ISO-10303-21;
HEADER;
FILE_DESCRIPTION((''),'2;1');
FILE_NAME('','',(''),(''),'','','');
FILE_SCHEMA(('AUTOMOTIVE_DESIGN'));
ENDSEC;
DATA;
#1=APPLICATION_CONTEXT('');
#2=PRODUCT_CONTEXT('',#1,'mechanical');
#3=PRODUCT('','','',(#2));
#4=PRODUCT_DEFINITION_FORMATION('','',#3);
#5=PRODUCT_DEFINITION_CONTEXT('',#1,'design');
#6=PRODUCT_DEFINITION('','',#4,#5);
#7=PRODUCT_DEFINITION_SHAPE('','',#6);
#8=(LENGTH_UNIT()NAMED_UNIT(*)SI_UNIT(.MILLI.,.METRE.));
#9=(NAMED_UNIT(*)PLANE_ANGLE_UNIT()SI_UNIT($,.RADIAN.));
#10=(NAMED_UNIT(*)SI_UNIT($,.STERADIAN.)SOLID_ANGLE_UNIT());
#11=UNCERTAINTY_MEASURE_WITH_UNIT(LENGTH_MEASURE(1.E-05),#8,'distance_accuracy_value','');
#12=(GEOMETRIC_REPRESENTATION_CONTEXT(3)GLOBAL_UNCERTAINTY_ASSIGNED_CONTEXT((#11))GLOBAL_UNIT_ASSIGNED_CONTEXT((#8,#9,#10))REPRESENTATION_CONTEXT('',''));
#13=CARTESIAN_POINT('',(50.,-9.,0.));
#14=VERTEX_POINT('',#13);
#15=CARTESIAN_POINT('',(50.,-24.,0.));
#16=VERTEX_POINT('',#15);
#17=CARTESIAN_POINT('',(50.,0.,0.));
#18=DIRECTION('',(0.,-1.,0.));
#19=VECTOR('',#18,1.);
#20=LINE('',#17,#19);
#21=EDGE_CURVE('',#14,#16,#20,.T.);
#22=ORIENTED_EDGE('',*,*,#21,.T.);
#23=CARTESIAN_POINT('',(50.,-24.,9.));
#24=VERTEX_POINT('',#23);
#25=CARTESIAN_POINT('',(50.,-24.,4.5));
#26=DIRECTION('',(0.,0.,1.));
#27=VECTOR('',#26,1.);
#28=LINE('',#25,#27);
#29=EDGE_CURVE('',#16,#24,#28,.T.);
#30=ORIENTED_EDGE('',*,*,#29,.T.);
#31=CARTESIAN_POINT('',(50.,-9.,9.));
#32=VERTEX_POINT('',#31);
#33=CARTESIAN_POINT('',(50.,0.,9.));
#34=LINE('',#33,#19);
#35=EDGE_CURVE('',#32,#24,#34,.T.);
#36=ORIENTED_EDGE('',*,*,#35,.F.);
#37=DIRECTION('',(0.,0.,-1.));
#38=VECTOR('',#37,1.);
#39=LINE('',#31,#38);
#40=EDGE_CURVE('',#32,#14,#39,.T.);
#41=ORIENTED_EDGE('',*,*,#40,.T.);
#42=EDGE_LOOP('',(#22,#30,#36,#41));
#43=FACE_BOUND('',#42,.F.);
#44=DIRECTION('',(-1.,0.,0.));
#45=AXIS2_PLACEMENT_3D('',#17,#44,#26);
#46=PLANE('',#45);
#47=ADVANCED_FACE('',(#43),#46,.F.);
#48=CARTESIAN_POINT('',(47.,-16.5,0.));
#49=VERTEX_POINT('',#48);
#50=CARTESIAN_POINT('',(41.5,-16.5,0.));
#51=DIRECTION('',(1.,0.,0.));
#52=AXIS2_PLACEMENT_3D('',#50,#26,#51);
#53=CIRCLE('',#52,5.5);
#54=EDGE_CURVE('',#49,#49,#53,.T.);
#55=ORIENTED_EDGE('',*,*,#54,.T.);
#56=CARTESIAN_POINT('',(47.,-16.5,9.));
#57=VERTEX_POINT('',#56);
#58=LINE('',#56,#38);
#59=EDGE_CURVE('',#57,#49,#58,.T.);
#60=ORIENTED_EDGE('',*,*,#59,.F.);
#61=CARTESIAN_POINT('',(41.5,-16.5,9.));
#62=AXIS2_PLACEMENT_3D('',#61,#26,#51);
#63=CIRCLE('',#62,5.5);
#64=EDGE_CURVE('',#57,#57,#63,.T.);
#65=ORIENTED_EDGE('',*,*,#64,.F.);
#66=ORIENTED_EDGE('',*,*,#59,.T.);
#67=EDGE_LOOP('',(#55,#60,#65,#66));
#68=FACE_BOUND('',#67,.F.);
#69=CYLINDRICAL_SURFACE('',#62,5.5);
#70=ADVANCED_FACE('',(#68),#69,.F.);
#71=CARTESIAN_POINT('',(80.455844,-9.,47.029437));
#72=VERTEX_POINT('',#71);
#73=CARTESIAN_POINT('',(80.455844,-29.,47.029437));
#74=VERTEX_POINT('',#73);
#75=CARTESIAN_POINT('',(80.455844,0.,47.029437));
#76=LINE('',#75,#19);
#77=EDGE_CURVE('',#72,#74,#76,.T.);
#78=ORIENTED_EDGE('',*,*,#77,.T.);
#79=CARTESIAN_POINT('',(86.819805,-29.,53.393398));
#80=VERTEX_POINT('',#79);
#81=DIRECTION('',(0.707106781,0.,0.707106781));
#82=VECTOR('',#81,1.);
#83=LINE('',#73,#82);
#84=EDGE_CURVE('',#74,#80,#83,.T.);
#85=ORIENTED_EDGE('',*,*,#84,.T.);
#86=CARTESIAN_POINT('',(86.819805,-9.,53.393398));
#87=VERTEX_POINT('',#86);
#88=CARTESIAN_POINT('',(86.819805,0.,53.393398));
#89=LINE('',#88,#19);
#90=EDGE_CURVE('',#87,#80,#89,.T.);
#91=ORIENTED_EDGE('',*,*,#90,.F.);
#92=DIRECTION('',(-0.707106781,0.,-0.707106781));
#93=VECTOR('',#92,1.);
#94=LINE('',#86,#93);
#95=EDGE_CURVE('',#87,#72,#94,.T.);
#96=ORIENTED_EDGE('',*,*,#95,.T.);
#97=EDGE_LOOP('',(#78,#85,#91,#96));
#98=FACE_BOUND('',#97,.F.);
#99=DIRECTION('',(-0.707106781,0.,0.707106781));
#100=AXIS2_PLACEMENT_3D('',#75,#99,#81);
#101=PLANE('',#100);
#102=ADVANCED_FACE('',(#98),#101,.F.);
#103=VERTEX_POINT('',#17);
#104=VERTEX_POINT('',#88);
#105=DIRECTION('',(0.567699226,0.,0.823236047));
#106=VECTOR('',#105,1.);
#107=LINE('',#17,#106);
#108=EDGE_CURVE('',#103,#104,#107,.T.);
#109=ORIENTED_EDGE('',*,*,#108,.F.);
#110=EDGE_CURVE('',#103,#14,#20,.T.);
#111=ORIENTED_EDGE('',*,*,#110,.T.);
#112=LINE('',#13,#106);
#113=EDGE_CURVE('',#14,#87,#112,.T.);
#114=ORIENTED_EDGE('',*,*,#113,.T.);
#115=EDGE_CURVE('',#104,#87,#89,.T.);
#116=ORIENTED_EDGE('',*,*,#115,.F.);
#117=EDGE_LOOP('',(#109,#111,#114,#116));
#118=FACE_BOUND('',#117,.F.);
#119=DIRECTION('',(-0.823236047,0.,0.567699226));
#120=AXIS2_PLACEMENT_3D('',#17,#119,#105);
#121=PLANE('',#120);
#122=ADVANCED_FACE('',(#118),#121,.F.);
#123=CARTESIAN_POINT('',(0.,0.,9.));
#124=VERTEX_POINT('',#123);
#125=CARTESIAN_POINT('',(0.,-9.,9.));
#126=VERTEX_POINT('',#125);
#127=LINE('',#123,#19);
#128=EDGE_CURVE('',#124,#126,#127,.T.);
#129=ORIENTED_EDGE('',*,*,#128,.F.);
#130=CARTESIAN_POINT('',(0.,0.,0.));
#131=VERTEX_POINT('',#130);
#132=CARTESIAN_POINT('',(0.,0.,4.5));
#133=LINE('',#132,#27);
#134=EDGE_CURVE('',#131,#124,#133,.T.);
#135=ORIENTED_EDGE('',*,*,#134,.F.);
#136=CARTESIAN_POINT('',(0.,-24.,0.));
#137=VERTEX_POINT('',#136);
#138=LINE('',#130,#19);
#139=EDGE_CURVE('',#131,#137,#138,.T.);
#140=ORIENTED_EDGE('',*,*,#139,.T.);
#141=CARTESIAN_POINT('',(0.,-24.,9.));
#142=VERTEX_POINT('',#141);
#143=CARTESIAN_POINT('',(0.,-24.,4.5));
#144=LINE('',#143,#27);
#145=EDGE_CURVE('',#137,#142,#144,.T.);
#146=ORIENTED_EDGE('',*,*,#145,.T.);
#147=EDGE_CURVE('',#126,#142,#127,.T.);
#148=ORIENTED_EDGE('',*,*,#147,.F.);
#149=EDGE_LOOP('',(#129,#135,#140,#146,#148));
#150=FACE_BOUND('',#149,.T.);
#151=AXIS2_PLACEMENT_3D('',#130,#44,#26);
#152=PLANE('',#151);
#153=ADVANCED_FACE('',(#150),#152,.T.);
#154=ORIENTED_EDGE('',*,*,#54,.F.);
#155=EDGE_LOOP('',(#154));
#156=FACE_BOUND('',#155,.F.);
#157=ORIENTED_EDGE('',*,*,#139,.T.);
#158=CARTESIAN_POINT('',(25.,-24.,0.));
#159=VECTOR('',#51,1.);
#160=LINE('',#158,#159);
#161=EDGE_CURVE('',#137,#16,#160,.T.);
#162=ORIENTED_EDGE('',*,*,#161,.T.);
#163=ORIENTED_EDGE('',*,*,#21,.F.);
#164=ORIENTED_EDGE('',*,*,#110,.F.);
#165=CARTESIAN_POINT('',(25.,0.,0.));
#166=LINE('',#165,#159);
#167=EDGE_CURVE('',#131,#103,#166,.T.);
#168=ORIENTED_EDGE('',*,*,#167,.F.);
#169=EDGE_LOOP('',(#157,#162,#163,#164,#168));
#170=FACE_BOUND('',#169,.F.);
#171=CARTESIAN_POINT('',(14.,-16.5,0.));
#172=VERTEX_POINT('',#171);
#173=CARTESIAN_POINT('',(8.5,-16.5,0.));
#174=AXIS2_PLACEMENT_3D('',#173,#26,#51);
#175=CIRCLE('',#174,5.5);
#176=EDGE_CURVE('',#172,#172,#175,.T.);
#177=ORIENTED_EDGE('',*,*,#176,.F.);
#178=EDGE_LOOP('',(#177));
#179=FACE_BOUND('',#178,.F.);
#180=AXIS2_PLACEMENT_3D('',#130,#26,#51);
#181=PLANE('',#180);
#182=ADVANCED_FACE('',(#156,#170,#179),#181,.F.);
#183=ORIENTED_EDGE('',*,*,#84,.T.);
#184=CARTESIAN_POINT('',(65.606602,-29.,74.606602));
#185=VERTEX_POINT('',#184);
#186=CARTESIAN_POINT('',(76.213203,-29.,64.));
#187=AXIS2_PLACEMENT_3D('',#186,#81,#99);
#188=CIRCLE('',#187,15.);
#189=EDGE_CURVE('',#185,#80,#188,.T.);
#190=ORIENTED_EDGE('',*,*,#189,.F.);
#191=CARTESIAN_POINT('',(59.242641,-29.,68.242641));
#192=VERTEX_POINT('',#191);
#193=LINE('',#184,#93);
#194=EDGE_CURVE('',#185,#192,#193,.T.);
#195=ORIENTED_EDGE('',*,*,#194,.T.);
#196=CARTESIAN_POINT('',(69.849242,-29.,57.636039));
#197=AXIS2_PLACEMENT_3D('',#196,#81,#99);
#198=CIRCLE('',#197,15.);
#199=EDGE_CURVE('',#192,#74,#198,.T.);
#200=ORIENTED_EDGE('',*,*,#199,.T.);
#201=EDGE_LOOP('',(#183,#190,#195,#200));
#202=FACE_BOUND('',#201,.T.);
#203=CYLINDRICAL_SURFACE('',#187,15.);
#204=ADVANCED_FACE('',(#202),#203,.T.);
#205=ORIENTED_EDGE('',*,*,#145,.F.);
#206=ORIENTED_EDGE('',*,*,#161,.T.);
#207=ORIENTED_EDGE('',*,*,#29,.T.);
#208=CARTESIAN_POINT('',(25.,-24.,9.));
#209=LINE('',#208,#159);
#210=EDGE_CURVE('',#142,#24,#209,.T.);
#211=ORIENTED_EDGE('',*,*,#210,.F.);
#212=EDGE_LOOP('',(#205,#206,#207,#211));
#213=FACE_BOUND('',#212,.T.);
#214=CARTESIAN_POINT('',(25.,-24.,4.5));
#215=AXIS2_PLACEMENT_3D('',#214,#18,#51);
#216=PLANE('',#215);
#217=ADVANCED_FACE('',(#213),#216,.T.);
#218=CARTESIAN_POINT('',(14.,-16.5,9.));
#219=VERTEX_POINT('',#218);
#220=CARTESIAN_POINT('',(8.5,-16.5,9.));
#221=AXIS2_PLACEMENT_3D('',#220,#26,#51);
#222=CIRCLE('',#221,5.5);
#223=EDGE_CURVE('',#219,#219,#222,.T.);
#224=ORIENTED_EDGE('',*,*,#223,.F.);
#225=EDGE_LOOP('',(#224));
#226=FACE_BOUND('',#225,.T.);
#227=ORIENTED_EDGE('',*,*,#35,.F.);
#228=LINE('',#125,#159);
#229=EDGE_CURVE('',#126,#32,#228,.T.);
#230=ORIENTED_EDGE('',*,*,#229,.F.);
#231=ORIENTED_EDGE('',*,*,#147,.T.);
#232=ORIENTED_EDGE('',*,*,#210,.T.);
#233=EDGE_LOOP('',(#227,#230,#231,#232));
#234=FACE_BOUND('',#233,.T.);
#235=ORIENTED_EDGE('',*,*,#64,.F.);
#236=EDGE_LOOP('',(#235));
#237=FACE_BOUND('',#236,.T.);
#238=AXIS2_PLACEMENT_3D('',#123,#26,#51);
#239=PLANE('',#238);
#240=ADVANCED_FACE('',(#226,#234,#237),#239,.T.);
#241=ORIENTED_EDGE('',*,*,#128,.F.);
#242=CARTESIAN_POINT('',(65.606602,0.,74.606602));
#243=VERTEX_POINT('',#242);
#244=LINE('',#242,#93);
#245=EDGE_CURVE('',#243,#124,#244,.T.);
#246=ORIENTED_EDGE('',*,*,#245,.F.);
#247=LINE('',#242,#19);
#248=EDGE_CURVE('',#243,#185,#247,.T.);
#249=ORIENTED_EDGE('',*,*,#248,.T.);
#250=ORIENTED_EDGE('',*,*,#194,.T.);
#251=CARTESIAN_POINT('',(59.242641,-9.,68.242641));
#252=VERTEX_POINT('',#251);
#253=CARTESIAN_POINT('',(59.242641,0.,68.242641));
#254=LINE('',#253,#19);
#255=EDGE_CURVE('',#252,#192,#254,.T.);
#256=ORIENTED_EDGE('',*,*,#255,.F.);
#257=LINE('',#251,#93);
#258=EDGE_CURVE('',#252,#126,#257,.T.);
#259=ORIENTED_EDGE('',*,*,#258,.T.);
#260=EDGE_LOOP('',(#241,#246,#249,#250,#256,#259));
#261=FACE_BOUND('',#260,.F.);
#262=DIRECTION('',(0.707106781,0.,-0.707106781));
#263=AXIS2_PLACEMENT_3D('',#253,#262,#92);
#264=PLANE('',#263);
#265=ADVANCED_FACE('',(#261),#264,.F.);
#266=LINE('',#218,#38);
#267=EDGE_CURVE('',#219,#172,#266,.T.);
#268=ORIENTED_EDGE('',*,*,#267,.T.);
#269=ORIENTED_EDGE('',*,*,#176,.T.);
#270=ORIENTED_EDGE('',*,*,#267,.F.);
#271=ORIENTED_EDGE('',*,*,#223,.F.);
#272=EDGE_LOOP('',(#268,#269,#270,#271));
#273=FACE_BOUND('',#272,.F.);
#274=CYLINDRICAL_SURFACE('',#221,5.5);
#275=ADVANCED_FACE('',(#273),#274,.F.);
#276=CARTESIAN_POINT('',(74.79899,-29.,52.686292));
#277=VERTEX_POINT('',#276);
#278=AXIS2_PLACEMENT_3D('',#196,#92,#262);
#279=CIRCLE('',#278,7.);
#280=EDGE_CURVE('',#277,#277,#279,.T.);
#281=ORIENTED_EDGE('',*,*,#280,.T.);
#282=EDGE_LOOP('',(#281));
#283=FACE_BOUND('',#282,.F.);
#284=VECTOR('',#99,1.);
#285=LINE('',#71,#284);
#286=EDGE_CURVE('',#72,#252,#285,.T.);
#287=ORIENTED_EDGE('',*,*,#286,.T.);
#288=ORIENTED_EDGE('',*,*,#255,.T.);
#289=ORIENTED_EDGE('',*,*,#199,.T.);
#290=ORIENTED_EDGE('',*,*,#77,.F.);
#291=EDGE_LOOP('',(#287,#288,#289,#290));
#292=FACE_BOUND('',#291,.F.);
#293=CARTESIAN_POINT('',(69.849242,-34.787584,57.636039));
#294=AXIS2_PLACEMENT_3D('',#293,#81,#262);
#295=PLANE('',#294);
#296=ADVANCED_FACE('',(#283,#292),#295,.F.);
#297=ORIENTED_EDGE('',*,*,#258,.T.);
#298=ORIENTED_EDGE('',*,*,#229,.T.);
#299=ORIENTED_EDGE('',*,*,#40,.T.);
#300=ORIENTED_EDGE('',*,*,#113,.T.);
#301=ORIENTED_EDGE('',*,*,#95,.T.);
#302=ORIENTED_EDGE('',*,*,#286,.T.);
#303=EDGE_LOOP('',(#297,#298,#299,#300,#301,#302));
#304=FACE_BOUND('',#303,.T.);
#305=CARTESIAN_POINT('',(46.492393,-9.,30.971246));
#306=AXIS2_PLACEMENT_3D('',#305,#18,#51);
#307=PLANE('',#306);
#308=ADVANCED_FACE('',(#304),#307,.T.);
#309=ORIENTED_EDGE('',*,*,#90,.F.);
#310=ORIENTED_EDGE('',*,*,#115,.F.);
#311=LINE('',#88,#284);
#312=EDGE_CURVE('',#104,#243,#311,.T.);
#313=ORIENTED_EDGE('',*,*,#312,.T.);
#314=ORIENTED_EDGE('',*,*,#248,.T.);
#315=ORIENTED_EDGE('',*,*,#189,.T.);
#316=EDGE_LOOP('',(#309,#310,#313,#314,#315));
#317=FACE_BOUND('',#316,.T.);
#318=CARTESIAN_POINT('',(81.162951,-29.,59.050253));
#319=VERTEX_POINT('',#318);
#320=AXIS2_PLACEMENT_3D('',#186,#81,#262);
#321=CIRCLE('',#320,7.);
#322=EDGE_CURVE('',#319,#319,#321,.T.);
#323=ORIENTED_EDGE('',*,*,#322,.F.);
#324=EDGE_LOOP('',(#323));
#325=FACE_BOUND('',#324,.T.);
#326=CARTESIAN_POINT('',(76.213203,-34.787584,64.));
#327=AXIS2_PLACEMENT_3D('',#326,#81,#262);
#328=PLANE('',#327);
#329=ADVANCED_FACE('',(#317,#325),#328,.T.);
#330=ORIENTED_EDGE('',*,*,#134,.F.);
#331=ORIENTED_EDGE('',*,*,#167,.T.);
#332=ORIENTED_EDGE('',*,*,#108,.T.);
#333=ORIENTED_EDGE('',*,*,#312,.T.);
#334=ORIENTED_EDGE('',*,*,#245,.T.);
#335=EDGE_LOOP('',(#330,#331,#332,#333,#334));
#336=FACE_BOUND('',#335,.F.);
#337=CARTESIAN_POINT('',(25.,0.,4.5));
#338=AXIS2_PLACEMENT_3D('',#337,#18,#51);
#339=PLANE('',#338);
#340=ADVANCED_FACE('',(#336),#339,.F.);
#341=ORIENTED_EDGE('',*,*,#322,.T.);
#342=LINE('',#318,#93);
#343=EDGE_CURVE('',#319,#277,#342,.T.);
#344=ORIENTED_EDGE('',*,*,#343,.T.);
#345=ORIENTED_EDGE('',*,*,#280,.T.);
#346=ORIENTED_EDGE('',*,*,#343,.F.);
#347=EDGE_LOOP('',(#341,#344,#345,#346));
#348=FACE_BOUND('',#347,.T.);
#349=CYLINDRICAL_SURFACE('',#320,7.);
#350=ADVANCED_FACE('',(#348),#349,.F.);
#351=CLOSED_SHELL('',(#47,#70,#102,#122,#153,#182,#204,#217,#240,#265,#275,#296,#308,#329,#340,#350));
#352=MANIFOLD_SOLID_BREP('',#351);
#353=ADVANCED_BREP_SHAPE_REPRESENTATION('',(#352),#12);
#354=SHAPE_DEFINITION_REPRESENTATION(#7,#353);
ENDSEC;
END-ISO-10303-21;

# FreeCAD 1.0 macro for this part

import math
import FreeCAD as App
import Part
import Sketcher
from FreeCAD import Vector
Q = App.Units.Quantity

doc = App.newDocument("Part")
body = doc.addObject("PartDesign::Body", "Body")

# Sketch on XZ plane
sketch1 = body.newObject("Sketcher::SketchObject", "Sketch")
sketch1.AttachmentSupport = (doc.getObject("XZ_Plane"), [""])
sketch1.MapMode = "FlatFace"
sketch1.addGeometry(Part.LineSegment(Vector(50, 9, 0), Vector(50, 0, 0)), False)
sketch1.addGeometry(Part.LineSegment(Vector(50, 0, 0), Vector(86.819805, 53.393398, 0)), False)
sketch1.addGeometry(Part.LineSegment(Vector(86.819805, 53.393398, 0), Vector(80.455844, 47.029437, 0)), False)
sketch1.addGeometry(Part.LineSegment(Vector(80.455844, 47.029437, 0), Vector(59.242641, 68.242641, 0)), False)
sketch1.addGeometry(Part.LineSegment(Vector(59.242641, 68.242641, 0), Vector(0, 9, 0)), False)
sketch1.addGeometry(Part.LineSegment(Vector(0, 9, 0), Vector(50, 9, 0)), False)
sketch1.addConstraint(Sketcher.Constraint("Coincident", 0, 2, 1, 1))
sketch1.addConstraint(Sketcher.Constraint("Coincident", 1, 2, 2, 1))
sketch1.addConstraint(Sketcher.Constraint("Coincident", 2, 2, 3, 1))
sketch1.addConstraint(Sketcher.Constraint("Coincident", 3, 2, 4, 1))
sketch1.addConstraint(Sketcher.Constraint("Coincident", 4, 2, 5, 1))
sketch1.addConstraint(Sketcher.Constraint("Coincident", 5, 2, 0, 1))
sketch1.addConstraint(Sketcher.Constraint("Vertical", 0))
sketch1.addConstraint(Sketcher.Constraint("Horizontal", 5))
sketch1.addConstraint(Sketcher.Constraint("PointOnObject", 0, 2, -1))
sketch1.addConstraint(Sketcher.Constraint("PointOnObject", 4, 2, -2))
sketch1.addConstraint(Sketcher.Constraint("Perpendicular", 2, 3))
sketch1.addConstraint(Sketcher.Constraint("Perpendicular", 3, 4))
sketch1.addConstraint(Sketcher.Constraint("DistanceX", 5, 1, 5, 2, Q("50 mm")))
sketch1.addConstraint(Sketcher.Constraint("DistanceY", 0, 2, 0, 1, Q("9 mm")))
sketch1.addConstraint(Sketcher.Constraint("Angle", 2, Q("-135 deg")))
sketch1.addConstraint(Sketcher.Constraint("Distance", 2, Q("9 mm")))
sketch1.addConstraint(Sketcher.Constraint("Distance", 3, Q("30 mm")))
sketch1.addConstraint(Sketcher.Constraint("DistanceY", -1, 1, 1, 2, Q("53.393398 mm")))
pad1 = body.newObject("PartDesign::Pad", "Pad")
pad1.Profile = sketch1
pad1.Length = 9

# Sketch on XZ plane
sketch2 = body.newObject("Sketcher::SketchObject", "Sketch001")
sketch2.AttachmentSupport = (doc.getObject("XZ_Plane"), [""])
sketch2.MapMode = "FlatFace"
sketch2.addGeometry(Part.LineSegment(Vector(80.455844, 47.029437, 0), Vector(86.819805, 53.393398, 0)), False)
sketch2.addGeometry(Part.LineSegment(Vector(86.819805, 53.393398, 0), Vector(65.606602, 74.606602, 0)), False)
sketch2.addGeometry(Part.LineSegment(Vector(65.606602, 74.606602, 0), Vector(59.242641, 68.242641, 0)), False)
sketch2.addGeometry(Part.LineSegment(Vector(59.242641, 68.242641, 0), Vector(80.455844, 47.029437, 0)), False)
sketch2.addConstraint(Sketcher.Constraint("Coincident", 0, 2, 1, 1))
sketch2.addConstraint(Sketcher.Constraint("Coincident", 1, 2, 2, 1))
sketch2.addConstraint(Sketcher.Constraint("Coincident", 2, 2, 3, 1))
sketch2.addConstraint(Sketcher.Constraint("Coincident", 3, 2, 0, 1))
sketch2.addConstraint(Sketcher.Constraint("Perpendicular", 0, 1))
sketch2.addConstraint(Sketcher.Constraint("Perpendicular", 1, 2))
sketch2.addConstraint(Sketcher.Constraint("Perpendicular", 2, 3))
sketch2.addConstraint(Sketcher.Constraint("Angle", 0, Q("45 deg")))
sketch2.addConstraint(Sketcher.Constraint("Distance", 0, Q("9 mm")))
sketch2.addConstraint(Sketcher.Constraint("Distance", 1, Q("30 mm")))
sketch2.addConstraint(Sketcher.Constraint("DistanceY", -1, 1, 0, 2, Q("53.393398 mm")))
sketch2.addConstraint(Sketcher.Constraint("DistanceX", -1, 1, 1, 2, Q("65.606602 mm")))
pad2 = body.newObject("PartDesign::Pad", "Pad001")
pad2.Profile = sketch2
pad2.Length = 29

# Sketch on an angled plane
sketch3 = body.newObject("Sketcher::SketchObject", "Sketch002")
sketch3.Placement = App.Placement(Vector(70.106602, 0, 70.106602), App.Rotation(Vector(0.707106781, 0, -0.707106781), Vector(0, 0.999999999, 0), Vector(0.707106781, 0, 0.707106781), "ZXY"))
sketch3.addGeometry(Part.LineSegment(Vector(23.636039, -29, 0), Vector(15.636039, -29, 0)), False)
sketch3.addGeometry(Part.ArcOfCircle(Part.Circle(Vector(8.636039, -29, 0), Vector(0, 0, 1), 7), math.radians(180), math.radians(360)), False)
sketch3.addGeometry(Part.LineSegment(Vector(1.636039, -29, 0), Vector(-6.363961, -29, 0)), False)
sketch3.addGeometry(Part.ArcOfCircle(Part.Circle(Vector(8.636039, -29, 0), Vector(0, 0, 1), 15), math.radians(180), math.radians(360)), False)
sketch3.addConstraint(Sketcher.Constraint("Coincident", 0, 2, 1, 2))
sketch3.addConstraint(Sketcher.Constraint("Coincident", 1, 1, 2, 1))
sketch3.addConstraint(Sketcher.Constraint("Coincident", 2, 2, 3, 1))
sketch3.addConstraint(Sketcher.Constraint("Coincident", 3, 2, 0, 1))
sketch3.addConstraint(Sketcher.Constraint("Horizontal", 0))
sketch3.addConstraint(Sketcher.Constraint("Horizontal", 2))
sketch3.addConstraint(Sketcher.Constraint("Coincident", 3, 3, 1, 3))
sketch3.addConstraint(Sketcher.Constraint("Horizontal", 3, 3, 0, 2))
sketch3.addConstraint(Sketcher.Constraint("Horizontal", 0, 2, 1, 1))
sketch3.addConstraint(Sketcher.Constraint("Radius", 1, Q("7 mm")))
sketch3.addConstraint(Sketcher.Constraint("Radius", 3, Q("15 mm")))
sketch3.addConstraint(Sketcher.Constraint("DistanceY", 1, 3, -1, 1, Q("29 mm")))
sketch3.addConstraint(Sketcher.Constraint("DistanceX", -1, 1, 1, 3, Q("8.636039 mm")))
pad3 = body.newObject("PartDesign::Pad", "Pad002")
pad3.Profile = sketch3
pad3.Length = 9
pad3.Reversed = True

# Sketch on an angled plane
sketch4 = body.newObject("Sketcher::SketchObject", "Sketch003")
sketch4.Placement = App.Placement(Vector(70.106602, 0, 70.106602), App.Rotation(Vector(0.707106781, 0, -0.707106781), Vector(0, 0.999999999, 0), Vector(0.707106781, 0, 0.707106781), "ZXY"))
sketch4.addGeometry(Part.LineSegment(Vector(1.636039, -29, 0), Vector(15.636039, -29, 0)), False)
sketch4.addGeometry(Part.ArcOfCircle(Part.Circle(Vector(8.636039, -29, 0), Vector(0, 0, 1), 7), math.radians(0), math.radians(180)), False)
sketch4.addConstraint(Sketcher.Constraint("Coincident", 0, 1, 1, 2))
sketch4.addConstraint(Sketcher.Constraint("Coincident", 1, 1, 0, 2))
sketch4.addConstraint(Sketcher.Constraint("Horizontal", 0))
sketch4.addConstraint(Sketcher.Constraint("Horizontal", 1, 3, 0, 1))
sketch4.addConstraint(Sketcher.Constraint("Radius", 1, Q("7 mm")))
sketch4.addConstraint(Sketcher.Constraint("DistanceY", 1, 3, -1, 1, Q("29 mm")))
sketch4.addConstraint(Sketcher.Constraint("DistanceX", -1, 1, 1, 3, Q("8.636039 mm")))
pocket1 = body.newObject("PartDesign::Pocket", "Pocket")
pocket1.Profile = sketch4
pocket1.Length = 9

# Sketch on XZ plane
sketch5 = body.newObject("Sketcher::SketchObject", "Sketch004")
sketch5.AttachmentSupport = (doc.getObject("XZ_Plane"), [""])
sketch5.MapMode = "FlatFace"
sketch5.addGeometry(Part.LineSegment(Vector(0, 9, 0), Vector(0, 0, 0)), False)
sketch5.addGeometry(Part.LineSegment(Vector(0, 0, 0), Vector(50, 0, 0)), False)
sketch5.addGeometry(Part.LineSegment(Vector(50, 0, 0), Vector(50, 9, 0)), False)
sketch5.addGeometry(Part.LineSegment(Vector(50, 9, 0), Vector(0, 9, 0)), False)
sketch5.addConstraint(Sketcher.Constraint("Coincident", 0, 2, 1, 1))
sketch5.addConstraint(Sketcher.Constraint("Coincident", 1, 2, 2, 1))
sketch5.addConstraint(Sketcher.Constraint("Coincident", 2, 2, 3, 1))
sketch5.addConstraint(Sketcher.Constraint("Coincident", 3, 2, 0, 1))
sketch5.addConstraint(Sketcher.Constraint("Vertical", 0))
sketch5.addConstraint(Sketcher.Constraint("Horizontal", 1))
sketch5.addConstraint(Sketcher.Constraint("Vertical", 2))
sketch5.addConstraint(Sketcher.Constraint("Horizontal", 3))
sketch5.addConstraint(Sketcher.Constraint("Coincident", 0, 2, -1, 1))
sketch5.addConstraint(Sketcher.Constraint("DistanceX", 1, 1, 1, 2, Q("50 mm")))
sketch5.addConstraint(Sketcher.Constraint("DistanceY", 0, 2, 0, 1, Q("9 mm")))
pad4 = body.newObject("PartDesign::Pad", "Pad003")
pad4.Profile = sketch5
pad4.Length = 24

# Sketch on XY plane
sketch6 = body.newObject("Sketcher::SketchObject", "Sketch005")
sketch6.AttachmentSupport = (doc.getObject("XY_Plane"), [""])
sketch6.MapMode = "FlatFace"
sketch6.AttachmentOffset = App.Placement(Vector(0, 0, 9), App.Rotation())
sketch6.addGeometry(Part.Circle(Vector(8.5, -16.5, 0), Vector(0, 0, 1), 5.5), False)
sketch6.addGeometry(Part.Circle(Vector(41.5, -16.5, 0), Vector(0, 0, 1), 5.5), False)
sketch6.addConstraint(Sketcher.Constraint("Equal", 0, 1))
sketch6.addConstraint(Sketcher.Constraint("Horizontal", 0, 3, 1, 3))
sketch6.addConstraint(Sketcher.Constraint("Diameter", 0, Q("11 mm")))
sketch6.addConstraint(Sketcher.Constraint("DistanceX", 0, 3, 1, 3, Q("33 mm")))
sketch6.addConstraint(Sketcher.Constraint("DistanceX", -1, 1, 0, 3, Q("8.5 mm")))
sketch6.addConstraint(Sketcher.Constraint("DistanceY", 0, 3, -1, 1, Q("16.5 mm")))
pocket2 = body.newObject("PartDesign::Pocket", "Pocket001")
pocket2.Profile = sketch6
pocket2.Type = "ThroughAll"

doc.recompute()
